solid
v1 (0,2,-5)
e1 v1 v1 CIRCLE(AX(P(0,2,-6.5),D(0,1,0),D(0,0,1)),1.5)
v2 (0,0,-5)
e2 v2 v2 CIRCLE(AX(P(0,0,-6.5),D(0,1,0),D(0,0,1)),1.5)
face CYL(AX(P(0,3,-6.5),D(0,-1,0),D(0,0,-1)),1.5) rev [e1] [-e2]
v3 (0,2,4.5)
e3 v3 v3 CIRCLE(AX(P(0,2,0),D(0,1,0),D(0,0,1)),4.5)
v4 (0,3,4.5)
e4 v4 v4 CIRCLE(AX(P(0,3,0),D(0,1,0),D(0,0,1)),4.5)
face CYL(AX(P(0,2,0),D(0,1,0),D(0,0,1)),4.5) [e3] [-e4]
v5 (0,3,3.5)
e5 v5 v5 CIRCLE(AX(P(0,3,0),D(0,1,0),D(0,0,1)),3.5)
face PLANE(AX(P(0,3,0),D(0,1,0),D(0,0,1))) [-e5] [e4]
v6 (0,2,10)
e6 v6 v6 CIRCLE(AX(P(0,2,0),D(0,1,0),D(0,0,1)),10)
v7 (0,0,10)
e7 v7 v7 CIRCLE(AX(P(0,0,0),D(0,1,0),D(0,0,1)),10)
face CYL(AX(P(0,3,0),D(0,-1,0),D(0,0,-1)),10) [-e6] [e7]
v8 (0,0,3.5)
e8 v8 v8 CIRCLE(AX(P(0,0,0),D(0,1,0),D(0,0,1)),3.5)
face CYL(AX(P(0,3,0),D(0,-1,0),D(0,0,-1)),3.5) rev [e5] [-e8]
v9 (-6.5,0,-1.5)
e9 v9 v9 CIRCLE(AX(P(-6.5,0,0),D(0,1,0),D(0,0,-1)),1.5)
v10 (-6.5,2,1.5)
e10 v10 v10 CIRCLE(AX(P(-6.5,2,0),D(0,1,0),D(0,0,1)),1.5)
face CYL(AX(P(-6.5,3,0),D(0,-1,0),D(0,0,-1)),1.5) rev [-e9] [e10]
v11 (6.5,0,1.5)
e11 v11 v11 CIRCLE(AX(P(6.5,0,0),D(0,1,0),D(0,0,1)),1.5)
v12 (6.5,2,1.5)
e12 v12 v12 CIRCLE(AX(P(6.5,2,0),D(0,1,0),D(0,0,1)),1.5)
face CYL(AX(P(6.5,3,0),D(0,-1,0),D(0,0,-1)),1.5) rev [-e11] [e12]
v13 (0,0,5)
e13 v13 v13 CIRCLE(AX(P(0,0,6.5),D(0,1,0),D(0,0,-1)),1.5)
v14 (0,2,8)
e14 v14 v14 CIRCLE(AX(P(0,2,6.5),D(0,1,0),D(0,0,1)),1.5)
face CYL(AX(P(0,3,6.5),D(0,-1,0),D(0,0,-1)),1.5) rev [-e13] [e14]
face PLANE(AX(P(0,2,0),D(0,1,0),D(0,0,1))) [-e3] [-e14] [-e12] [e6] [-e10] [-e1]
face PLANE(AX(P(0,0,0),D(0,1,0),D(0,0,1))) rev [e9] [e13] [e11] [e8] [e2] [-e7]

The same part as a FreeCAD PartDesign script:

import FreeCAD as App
import Part
import Sketcher

V = App.Vector
Q = App.Units.Quantity

doc = App.newDocument("Part")
body = doc.addObject("PartDesign::Body", "Body")

# Sketch on XZ plane
sketch1 = body.newObject("Sketcher::SketchObject", "Sketch")
sketch1.AttachmentSupport = (doc.getObject("XZ_Plane"), [""])
sketch1.MapMode = "FlatFace"
sketch1.addGeometry([
    Part.Circle(V(0, 0, 0), V(0, 0, 1), 10),  # 0
    Part.Circle(V(-6.5, 0, 0), V(0, 0, 1), 1.5),  # 1
    Part.Circle(V(0, 6.5, 0), V(0, 0, 1), 1.5),  # 2
    Part.Circle(V(0, 0, 0), V(0, 0, 1), 3.5),  # 3
    Part.Circle(V(6.5, 0, 0), V(0, 0, 1), 1.5),  # 4
    Part.Circle(V(0, -6.5, 0), V(0, 0, 1), 1.5),  # 5
], False)
sketch1.addConstraint([
    Sketcher.Constraint("Coincident", 0, 3, -1, 1),
    Sketcher.Constraint("Coincident", 3, 3, -1, 1),
    Sketcher.Constraint("Equal", 1, 2),
    Sketcher.Constraint("Equal", 2, 4),
    Sketcher.Constraint("Equal", 4, 5),
    Sketcher.Constraint("Symmetric", 1, 3, 4, 3, -1, 1),
    Sketcher.Constraint("Symmetric", 2, 3, 5, 3, -1, 1),
    Sketcher.Constraint("PointOnObject", 1, 3, -1),
    Sketcher.Constraint("PointOnObject", 2, 3, -2),
    Sketcher.Constraint("Diameter", 0, Q("20 mm")),
    Sketcher.Constraint("Diameter", 1, Q("3 mm")),
    Sketcher.Constraint("Diameter", 3, Q("7 mm")),
    Sketcher.Constraint("DistanceX", 1, 3, 4, 3, Q("13 mm")),
    Sketcher.Constraint("DistanceY", 5, 3, 2, 3, Q("13 mm")),
])
pad1 = body.newObject("PartDesign::Pad", "Pad")
pad1.Profile = sketch1
pad1.Length = 3
pad1.Reversed = True

# Sketch on XZ plane
sketch2 = body.newObject("Sketcher::SketchObject", "Sketch001")
sketch2.AttachmentSupport = (doc.getObject("XZ_Plane"), [""])
sketch2.MapMode = "FlatFace"
sketch2.AttachmentOffset = App.Placement(V(0, 0, -3), App.Rotation())
sketch2.addGeometry([
    Part.Circle(V(0, 0, 0), V(0, 0, 1), 10),  # 0
    Part.Circle(V(-6.5, 0, 0), V(0, 0, 1), 1.5),  # 1
    Part.Circle(V(0, 6.5, 0), V(0, 0, 1), 1.5),  # 2
    Part.Circle(V(0, 0, 0), V(0, 0, 1), 4.5),  # 3
    Part.Circle(V(6.5, 0, 0), V(0, 0, 1), 1.5),  # 4
    Part.Circle(V(0, -6.5, 0), V(0, 0, 1), 1.5),  # 5
], False)
sketch2.addConstraint([
    Sketcher.Constraint("Coincident", 0, 3, -1, 1),
    Sketcher.Constraint("Coincident", 3, 3, -1, 1),
    Sketcher.Constraint("Equal", 1, 2),
    Sketcher.Constraint("Equal", 2, 4),
    Sketcher.Constraint("Equal", 4, 5),
    Sketcher.Constraint("Symmetric", 1, 3, 4, 3, -1, 1),
    Sketcher.Constraint("Symmetric", 2, 3, 5, 3, -1, 1),
    Sketcher.Constraint("PointOnObject", 1, 3, -1),
    Sketcher.Constraint("PointOnObject", 2, 3, -2),
    Sketcher.Constraint("Diameter", 0, Q("20 mm")),
    Sketcher.Constraint("Diameter", 1, Q("3 mm")),
    Sketcher.Constraint("Diameter", 3, Q("9 mm")),
    Sketcher.Constraint("DistanceX", 1, 3, 4, 3, Q("13 mm")),
    Sketcher.Constraint("DistanceY", 5, 3, 2, 3, Q("13 mm")),
])
pocket1 = body.newObject("PartDesign::Pocket", "Pocket")
pocket1.Profile = sketch2
pocket1.Length = 1
pocket1.Reversed = True

doc.recompute()
